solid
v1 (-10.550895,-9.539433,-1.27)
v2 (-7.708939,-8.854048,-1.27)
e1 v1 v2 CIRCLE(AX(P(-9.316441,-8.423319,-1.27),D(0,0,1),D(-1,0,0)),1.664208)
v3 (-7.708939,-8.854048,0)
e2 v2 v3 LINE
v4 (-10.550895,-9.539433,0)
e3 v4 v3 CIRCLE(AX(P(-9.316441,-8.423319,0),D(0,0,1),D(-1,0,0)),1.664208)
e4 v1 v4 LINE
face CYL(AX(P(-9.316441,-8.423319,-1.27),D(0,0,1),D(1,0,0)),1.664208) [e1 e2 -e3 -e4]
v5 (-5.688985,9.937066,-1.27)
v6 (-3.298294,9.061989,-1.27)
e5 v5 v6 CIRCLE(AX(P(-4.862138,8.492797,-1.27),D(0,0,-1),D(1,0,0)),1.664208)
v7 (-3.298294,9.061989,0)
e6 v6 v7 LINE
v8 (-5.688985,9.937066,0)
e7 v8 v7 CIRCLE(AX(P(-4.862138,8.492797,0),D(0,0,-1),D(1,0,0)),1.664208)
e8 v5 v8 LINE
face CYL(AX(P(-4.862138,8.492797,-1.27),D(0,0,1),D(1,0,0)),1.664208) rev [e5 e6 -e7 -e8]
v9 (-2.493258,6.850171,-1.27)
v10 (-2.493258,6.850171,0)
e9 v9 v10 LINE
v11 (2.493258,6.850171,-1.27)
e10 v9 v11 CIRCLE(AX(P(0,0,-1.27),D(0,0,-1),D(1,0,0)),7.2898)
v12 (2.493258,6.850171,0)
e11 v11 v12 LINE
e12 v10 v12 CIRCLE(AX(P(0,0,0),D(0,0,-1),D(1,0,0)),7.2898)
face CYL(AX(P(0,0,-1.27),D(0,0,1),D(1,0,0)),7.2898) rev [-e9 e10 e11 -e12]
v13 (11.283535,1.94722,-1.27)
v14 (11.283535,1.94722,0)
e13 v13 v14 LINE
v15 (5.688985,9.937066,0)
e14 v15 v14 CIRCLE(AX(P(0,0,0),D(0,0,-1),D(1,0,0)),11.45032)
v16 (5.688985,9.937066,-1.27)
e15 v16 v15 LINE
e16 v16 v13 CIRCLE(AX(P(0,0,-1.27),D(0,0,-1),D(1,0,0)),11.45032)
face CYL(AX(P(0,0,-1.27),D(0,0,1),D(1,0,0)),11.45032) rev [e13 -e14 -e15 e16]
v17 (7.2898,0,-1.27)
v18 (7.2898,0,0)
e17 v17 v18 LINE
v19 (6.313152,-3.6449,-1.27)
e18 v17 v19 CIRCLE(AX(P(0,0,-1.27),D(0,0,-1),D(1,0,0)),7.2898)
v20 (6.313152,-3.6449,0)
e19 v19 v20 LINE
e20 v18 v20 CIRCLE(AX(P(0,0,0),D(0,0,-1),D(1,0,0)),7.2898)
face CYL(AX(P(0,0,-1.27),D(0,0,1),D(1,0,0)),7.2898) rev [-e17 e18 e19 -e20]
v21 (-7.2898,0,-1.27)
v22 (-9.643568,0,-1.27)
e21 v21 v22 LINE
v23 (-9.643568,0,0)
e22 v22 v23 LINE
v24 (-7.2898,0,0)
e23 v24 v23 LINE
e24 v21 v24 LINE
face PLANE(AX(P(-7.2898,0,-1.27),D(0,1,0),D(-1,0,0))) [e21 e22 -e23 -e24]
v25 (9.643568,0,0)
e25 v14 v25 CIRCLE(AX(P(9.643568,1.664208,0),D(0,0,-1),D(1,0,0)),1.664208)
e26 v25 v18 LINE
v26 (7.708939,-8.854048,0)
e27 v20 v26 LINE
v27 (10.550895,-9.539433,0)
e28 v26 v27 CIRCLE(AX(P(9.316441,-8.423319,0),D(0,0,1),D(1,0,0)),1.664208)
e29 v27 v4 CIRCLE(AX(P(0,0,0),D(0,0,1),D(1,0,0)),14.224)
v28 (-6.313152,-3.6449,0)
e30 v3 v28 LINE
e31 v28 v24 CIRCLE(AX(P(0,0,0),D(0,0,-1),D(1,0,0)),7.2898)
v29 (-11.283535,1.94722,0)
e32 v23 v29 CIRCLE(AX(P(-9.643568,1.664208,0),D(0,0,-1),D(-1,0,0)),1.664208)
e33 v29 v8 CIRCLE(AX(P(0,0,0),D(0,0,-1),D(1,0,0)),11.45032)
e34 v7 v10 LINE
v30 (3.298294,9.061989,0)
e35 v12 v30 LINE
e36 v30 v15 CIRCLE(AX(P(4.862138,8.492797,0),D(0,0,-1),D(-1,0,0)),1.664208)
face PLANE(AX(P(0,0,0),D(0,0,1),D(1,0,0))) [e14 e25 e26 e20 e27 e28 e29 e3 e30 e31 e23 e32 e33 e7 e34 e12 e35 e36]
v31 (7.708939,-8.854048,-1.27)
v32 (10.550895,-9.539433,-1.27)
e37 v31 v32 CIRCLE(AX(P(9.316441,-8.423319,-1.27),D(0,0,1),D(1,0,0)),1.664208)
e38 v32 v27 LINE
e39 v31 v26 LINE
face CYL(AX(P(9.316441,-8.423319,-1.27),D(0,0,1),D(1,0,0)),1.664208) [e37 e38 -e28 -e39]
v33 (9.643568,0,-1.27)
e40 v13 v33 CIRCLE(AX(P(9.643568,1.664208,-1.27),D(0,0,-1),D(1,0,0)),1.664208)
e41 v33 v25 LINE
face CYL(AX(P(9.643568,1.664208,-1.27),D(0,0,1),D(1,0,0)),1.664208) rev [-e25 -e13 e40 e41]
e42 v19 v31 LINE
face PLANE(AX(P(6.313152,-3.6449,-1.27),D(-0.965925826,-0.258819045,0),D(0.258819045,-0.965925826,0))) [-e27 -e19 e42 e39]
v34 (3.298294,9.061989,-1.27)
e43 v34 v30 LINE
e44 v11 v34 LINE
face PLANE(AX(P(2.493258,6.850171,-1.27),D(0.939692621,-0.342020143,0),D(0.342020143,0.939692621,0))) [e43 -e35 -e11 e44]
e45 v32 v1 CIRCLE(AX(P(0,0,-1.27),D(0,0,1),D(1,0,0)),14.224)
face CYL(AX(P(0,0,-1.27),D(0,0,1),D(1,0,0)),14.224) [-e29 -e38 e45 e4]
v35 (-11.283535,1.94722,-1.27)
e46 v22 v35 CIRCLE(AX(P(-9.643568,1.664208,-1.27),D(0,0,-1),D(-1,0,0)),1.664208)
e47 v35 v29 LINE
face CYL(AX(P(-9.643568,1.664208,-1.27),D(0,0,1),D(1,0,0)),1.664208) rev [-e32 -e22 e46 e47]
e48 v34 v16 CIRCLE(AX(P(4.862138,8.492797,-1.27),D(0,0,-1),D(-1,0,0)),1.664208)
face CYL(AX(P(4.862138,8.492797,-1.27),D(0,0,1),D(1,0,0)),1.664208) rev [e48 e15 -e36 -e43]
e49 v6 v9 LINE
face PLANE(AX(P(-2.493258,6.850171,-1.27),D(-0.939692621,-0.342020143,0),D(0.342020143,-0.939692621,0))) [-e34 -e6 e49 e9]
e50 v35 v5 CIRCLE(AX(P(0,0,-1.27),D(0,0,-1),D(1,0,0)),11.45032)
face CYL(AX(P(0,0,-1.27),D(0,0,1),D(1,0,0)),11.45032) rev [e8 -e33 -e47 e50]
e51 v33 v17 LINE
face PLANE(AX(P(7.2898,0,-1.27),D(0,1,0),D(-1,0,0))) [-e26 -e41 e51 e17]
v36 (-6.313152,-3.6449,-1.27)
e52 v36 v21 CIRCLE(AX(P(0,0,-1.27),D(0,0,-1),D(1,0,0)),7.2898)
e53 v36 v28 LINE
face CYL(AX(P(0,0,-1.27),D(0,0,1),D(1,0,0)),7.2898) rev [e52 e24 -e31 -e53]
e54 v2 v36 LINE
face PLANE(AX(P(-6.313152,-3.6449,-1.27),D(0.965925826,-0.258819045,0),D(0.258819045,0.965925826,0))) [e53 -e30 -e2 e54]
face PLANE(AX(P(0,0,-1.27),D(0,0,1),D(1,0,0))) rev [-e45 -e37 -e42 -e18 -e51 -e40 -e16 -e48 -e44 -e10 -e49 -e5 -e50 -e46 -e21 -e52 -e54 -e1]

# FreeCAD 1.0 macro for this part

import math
import FreeCAD as App
import Part
import Sketcher
from FreeCAD import Vector
Q = App.Units.Quantity

doc = App.newDocument("Part")
body = doc.addObject("PartDesign::Body", "Body")

# Sketch on XY plane
sketch1 = doc.addObject("Sketcher::SketchObject", "Sketch")
body.addObject(sketch1)
sketch1.AttachmentSupport = (doc.XY_Plane, [""])
sketch1.MapMode = "FlatFace"
sketch1.addGeometry([
    Part.LineSegment(Vector(6.3, -3.6, 0), Vector(7.7, -8.9, 0)),  # 0
    Part.ArcOfCircle(Part.Circle(Vector(9.3, -8.4, 0), Vector(0, 0, 1), 1.7), math.radians(-165), math.radians(-42)),  # 1
    Part.ArcOfCircle(Part.Circle(Vector(0, 0, 0), Vector(0, 0, 1), 14.2), math.radians(-42), math.radians(222)),  # 2
    Part.ArcOfCircle(Part.Circle(Vector(-9.3, -8.4, 0), Vector(0, 0, 1), 1.7), math.radians(-138), math.radians(-15)),  # 3
    Part.LineSegment(Vector(-7.7, -8.9, 0), Vector(-6.3, -3.6, 0)),  # 4
    Part.ArcOfCircle(Part.Circle(Vector(0, 0, 0), Vector(0, 0, 1), 7.3), math.radians(-180), math.radians(-150)),  # 5
    Part.LineSegment(Vector(-7.3, 0, 0), Vector(-9.6, 0, 0)),  # 6
    Part.ArcOfCircle(Part.Circle(Vector(-9.6, 1.7, 0), Vector(0, 0, 1), 1.7), math.radians(170), math.radians(270)),  # 7
    Part.ArcOfCircle(Part.Circle(Vector(0, 0, 0), Vector(0, 0, 1), 11.5), math.radians(120), math.radians(170)),  # 8
    Part.ArcOfCircle(Part.Circle(Vector(-4.9, 8.5, 0), Vector(0, 0, 1), 1.7), math.radians(20), math.radians(120)),  # 9
    Part.LineSegment(Vector(-3.3, 9.1, 0), Vector(-2.5, 6.9, 0)),  # 10
    Part.ArcOfCircle(Part.Circle(Vector(0, 0, 0), Vector(0, 0, 1), 7.3), math.radians(70), math.radians(110)),  # 11
    Part.LineSegment(Vector(2.5, 6.9, 0), Vector(3.3, 9.1, 0)),  # 12
    Part.ArcOfCircle(Part.Circle(Vector(4.9, 8.5, 0), Vector(0, 0, 1), 1.7), math.radians(60), math.radians(160)),  # 13
    Part.ArcOfCircle(Part.Circle(Vector(0, 0, 0), Vector(0, 0, 1), 11.5), math.radians(10), math.radians(60)),  # 14
    Part.ArcOfCircle(Part.Circle(Vector(9.6, 1.7, 0), Vector(0, 0, 1), 1.7), math.radians(-90), math.radians(10)),  # 15
    Part.LineSegment(Vector(9.6, 0, 0), Vector(7.3, 0, 0)),  # 16
    Part.ArcOfCircle(Part.Circle(Vector(0, 0, 0), Vector(0, 0, 1), 7.3), math.radians(-30), math.radians(0)),  # 17
], False)
sketch1.addConstraint([
    Sketcher.Constraint("Tangent", 0, 2, 1, 1),
    Sketcher.Constraint("Tangent", 1, 2, 2, 1),
    Sketcher.Constraint("Tangent", 2, 2, 3, 1),
    Sketcher.Constraint("Tangent", 3, 2, 4, 1),
    Sketcher.Constraint("Coincident", 4, 2, 5, 2),
    Sketcher.Constraint("Coincident", 5, 1, 6, 1),
    Sketcher.Constraint("Tangent", 6, 2, 7, 2),
    Sketcher.Constraint("Tangent", 7, 1, 8, 2),
    Sketcher.Constraint("Tangent", 8, 1, 9, 2),
    Sketcher.Constraint("Tangent", 9, 1, 10, 1),
    Sketcher.Constraint("Coincident", 10, 2, 11, 2),
    Sketcher.Constraint("Coincident", 11, 1, 12, 1),
    Sketcher.Constraint("Tangent", 12, 2, 13, 2),
    Sketcher.Constraint("Tangent", 13, 1, 14, 2),
    Sketcher.Constraint("Tangent", 14, 1, 15, 2),
    Sketcher.Constraint("Tangent", 15, 1, 16, 1),
    Sketcher.Constraint("Coincident", 16, 2, 17, 2),
    Sketcher.Constraint("Coincident", 17, 1, 0, 1),
    Sketcher.Constraint("Horizontal", 6),
    Sketcher.Constraint("Horizontal", 16),
    Sketcher.Constraint("Coincident", 2, 3, -1, 1),
    Sketcher.Constraint("Coincident", 5, 3, -1, 1),
    Sketcher.Constraint("Coincident", 8, 3, -1, 1),
    Sketcher.Constraint("Coincident", 11, 3, -1, 1),
    Sketcher.Constraint("Coincident", 14, 3, -1, 1),
    Sketcher.Constraint("Coincident", 17, 3, -1, 1),
    Sketcher.Constraint("Equal", 1, 3),
    Sketcher.Constraint("Equal", 3, 7),
    Sketcher.Constraint("Equal", 7, 9),
    Sketcher.Constraint("Equal", 5, 11),
    Sketcher.Constraint("Equal", 9, 13),
    Sketcher.Constraint("Equal", 8, 14),
    Sketcher.Constraint("Equal", 13, 15),
    Sketcher.Constraint("Equal", 11, 17),
    Sketcher.Constraint("Symmetric", 6, 2, 15, 1, -1, 1),
    Sketcher.Constraint("Symmetric", 0, 2, 3, 2, -2),
    Sketcher.Constraint("Symmetric", 9, 1, 12, 2, -2),
    Sketcher.Constraint("Radius", 2, Q("0.56 in")),
    Sketcher.Constraint("Angle", 0, Q("-75 deg")),
    Sketcher.Constraint("Angle", 10, Q("-70 deg")),
    Sketcher.Constraint("Radius", 5, Q("0.287 in")),
    Sketcher.Constraint("Radius", 8, Q("0.4508 in")),
    Sketcher.Constraint("Radius", 9, Q("1.664208 mm")),
    Sketcher.Constraint("DistanceY", 4, 2, -1, 1, Q("0.1435 in")),
    Sketcher.Constraint("DistanceY", 7, 1, 9, 3, Q("0.2576999 in")),
])
pad1 = doc.addObject("PartDesign::Pad", "Pad")
body.addObject(pad1)
pad1.Profile = sketch1
pad1.Length = Q("0.05 in")
pad1.Reversed = True

doc.recompute()
